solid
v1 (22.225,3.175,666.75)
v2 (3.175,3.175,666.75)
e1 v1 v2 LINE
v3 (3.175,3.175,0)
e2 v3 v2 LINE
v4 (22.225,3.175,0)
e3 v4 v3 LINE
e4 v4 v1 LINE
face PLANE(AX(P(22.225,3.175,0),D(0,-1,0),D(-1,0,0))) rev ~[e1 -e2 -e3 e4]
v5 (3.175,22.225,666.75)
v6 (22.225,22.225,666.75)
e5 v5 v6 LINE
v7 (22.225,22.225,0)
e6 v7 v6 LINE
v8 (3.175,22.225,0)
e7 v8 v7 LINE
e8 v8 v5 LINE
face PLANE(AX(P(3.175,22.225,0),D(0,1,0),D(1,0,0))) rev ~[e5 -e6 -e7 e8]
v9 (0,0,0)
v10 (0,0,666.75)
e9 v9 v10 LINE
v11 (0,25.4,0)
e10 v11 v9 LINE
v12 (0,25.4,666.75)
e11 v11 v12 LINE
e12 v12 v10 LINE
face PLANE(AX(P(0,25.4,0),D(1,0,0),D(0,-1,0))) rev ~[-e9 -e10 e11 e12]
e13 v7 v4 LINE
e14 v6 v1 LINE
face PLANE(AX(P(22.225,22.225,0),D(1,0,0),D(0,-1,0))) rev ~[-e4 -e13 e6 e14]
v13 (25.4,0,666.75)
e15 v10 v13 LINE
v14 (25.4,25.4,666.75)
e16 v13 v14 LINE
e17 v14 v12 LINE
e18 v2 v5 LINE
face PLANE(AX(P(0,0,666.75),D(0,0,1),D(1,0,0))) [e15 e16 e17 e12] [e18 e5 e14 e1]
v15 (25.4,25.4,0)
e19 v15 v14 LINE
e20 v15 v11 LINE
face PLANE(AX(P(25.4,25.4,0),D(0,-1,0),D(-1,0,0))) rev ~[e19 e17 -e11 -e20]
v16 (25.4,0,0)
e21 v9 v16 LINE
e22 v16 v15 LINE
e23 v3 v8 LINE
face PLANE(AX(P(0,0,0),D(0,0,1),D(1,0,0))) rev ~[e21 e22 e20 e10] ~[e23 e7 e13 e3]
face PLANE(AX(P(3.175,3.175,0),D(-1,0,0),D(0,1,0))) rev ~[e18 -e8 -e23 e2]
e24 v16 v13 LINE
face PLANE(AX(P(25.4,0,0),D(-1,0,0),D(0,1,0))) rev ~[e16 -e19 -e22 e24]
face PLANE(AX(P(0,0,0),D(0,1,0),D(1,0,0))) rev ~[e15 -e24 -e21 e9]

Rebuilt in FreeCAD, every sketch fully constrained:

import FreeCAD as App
import Part
import Sketcher
Q = App.Units.Quantity

doc = App.newDocument("Part")
body = doc.addObject("PartDesign::Body", "Body")

sketch1 = body.newObject("Sketcher::SketchObject", "Sketch")
sketch1.AttachmentSupport = (doc.getObject("XY_Plane"), [""])
sketch1.MapMode = "FlatFace"
sketch1.addGeometry([
    Part.LineSegment(App.Vector(0, 25.4, 0), App.Vector(0, 0, 0)),
    Part.LineSegment(App.Vector(0, 0, 0), App.Vector(25.4, 0, 0)),
    Part.LineSegment(App.Vector(25.4, 0, 0), App.Vector(25.4, 25.4, 0)),
    Part.LineSegment(App.Vector(25.4, 25.4, 0), App.Vector(0, 25.4, 0)),
    Part.LineSegment(App.Vector(3.175, 3.175, 0), App.Vector(3.175, 22.225, 0)),
    Part.LineSegment(App.Vector(3.175, 22.225, 0), App.Vector(22.225, 22.225, 0)),
    Part.LineSegment(App.Vector(22.225, 22.225, 0), App.Vector(22.225, 3.175, 0)),
    Part.LineSegment(App.Vector(22.225, 3.175, 0), App.Vector(3.175, 3.175, 0)),
], False)
sketch1.addConstraint([
    Sketcher.Constraint("Coincident", 0, 2, 1, 1),
    Sketcher.Constraint("Coincident", 1, 2, 2, 1),
    Sketcher.Constraint("Coincident", 2, 2, 3, 1),
    Sketcher.Constraint("Coincident", 3, 2, 0, 1),
    Sketcher.Constraint("Coincident", 4, 2, 5, 1),
    Sketcher.Constraint("Coincident", 5, 2, 6, 1),
    Sketcher.Constraint("Coincident", 6, 2, 7, 1),
    Sketcher.Constraint("Coincident", 7, 2, 4, 1),
    Sketcher.Constraint("Vertical", 0),
    Sketcher.Constraint("Horizontal", 1),
    Sketcher.Constraint("Vertical", 2),
    Sketcher.Constraint("Horizontal", 3),
    Sketcher.Constraint("Vertical", 4),
    Sketcher.Constraint("Horizontal", 5),
    Sketcher.Constraint("Vertical", 6),
    Sketcher.Constraint("Horizontal", 7),
    Sketcher.Constraint("Coincident", 0, 2, -1, 1),
    Sketcher.Constraint("Equal", 3, 0),
    Sketcher.Constraint("Equal", 7, 4),
    Sketcher.Constraint("DistanceX", 1, 1, 1, 2, Q("1 in")),
    Sketcher.Constraint("DistanceX", -1, 1, 4, 2, Q("0.125 in")),
    Sketcher.Constraint("DistanceY", -1, 1, 6, 2, Q("0.125 in")),
    Sketcher.Constraint("DistanceY", 4, 2, 3, 2, Q("0.125 in")),
])
pad1 = body.newObject("PartDesign::Pad", "Pad")
pad1.Profile = sketch1
pad1.Length = Q("26.25 in")

doc.recompute()
